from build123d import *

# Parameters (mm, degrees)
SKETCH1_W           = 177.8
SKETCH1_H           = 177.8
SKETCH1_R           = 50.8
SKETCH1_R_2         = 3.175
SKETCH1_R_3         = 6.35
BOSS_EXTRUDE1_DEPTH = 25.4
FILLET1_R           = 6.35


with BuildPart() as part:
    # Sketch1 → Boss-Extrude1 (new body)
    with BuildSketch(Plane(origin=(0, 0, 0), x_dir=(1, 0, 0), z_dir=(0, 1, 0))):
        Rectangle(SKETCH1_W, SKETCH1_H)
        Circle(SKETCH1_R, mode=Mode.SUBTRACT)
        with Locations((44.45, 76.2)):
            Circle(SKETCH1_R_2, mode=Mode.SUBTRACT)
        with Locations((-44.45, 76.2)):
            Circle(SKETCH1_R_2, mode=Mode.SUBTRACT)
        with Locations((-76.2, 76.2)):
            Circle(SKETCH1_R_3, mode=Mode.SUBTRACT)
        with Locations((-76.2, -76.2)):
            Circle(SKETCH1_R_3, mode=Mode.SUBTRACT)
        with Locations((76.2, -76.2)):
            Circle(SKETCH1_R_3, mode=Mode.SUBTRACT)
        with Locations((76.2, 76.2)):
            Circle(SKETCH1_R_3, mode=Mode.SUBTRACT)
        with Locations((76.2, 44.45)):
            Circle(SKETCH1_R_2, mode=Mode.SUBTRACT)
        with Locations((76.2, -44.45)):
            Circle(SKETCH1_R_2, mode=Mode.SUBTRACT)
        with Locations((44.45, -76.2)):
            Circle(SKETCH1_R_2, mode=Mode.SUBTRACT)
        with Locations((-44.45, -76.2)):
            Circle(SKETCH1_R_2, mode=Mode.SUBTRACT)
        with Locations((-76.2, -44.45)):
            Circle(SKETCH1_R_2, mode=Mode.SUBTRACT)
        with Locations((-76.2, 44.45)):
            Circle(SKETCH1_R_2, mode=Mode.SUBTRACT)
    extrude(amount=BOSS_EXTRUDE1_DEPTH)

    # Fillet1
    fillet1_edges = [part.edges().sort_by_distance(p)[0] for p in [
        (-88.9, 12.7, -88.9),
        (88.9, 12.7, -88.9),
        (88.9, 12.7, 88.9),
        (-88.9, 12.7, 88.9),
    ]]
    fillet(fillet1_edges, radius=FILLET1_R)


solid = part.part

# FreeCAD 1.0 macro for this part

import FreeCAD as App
import Part
import Sketcher

V = App.Vector
Q = App.Units.Quantity


def edges_at(feature, points):
    """Names of the edges that pass closest to the given points."""
    edges = feature.Shape.Edges
    near = lambda p: min(range(len(edges)), key=lambda i: edges[i].distToShape(Part.Vertex(*p))[0])
    return sorted({f"Edge{near(p) + 1}" for p in points})


def add_polygon(sketch, points):
    """Adds a closed chain of lines whose ends are joined by coincident constraints."""
    first, n = sketch.GeometryCount, len(points)
    for a, b in zip(points, points[1:] + points[:1]):
        sketch.addGeometry(Part.LineSegment(App.Vector(*a, 0), App.Vector(*b, 0)), False)
    for i in range(n):
        sketch.addConstraint(Sketcher.Constraint("Coincident", first + i, 2, first + (i + 1) % n, 1))

doc = App.newDocument("Part")
params = doc.addObject("Spreadsheet::Sheet", "Params")
for row, (alias, value) in enumerate([
    ("sketch1_diameter", "4 in"),
    ("sketch1_diameter2", "0.5 in"),
    ("sketch1_diameter3", "0.25 in"),
    ("sketch1_width", "7 in"),
    ("pad1_length", "1 in"),
    ("fillet_radius", "0.25 in"),
], start=1):
    params.set(f"A{row}", alias)
    params.set(f"B{row}", "=" + value)
    params.setAlias(f"B{row}", alias)

body = doc.addObject("PartDesign::Body", "Body")

# Sketch on XZ plane
sketch1 = doc.addObject("Sketcher::SketchObject", "Sketch")
body.addObject(sketch1)
sketch1.AttachmentSupport = (doc.XZ_Plane, [""])
sketch1.MapMode = "FlatFace"
add_polygon(sketch1, [(-88.9, -88.9), (-88.9, 88.9), (88.9, 88.9), (88.9, -88.9)])  # lines 0-3
sketch1.addGeometry(Part.Circle(V(-76.2, 76.2, 0), V(0, 0, 1), 6.3), False)  # 4
sketch1.addGeometry(Part.Circle(V(-44.5, 76.2, 0), V(0, 0, 1), 3.2), False)  # 5
sketch1.addGeometry(Part.Circle(V(-76.2, 44.5, 0), V(0, 0, 1), 3.2), False)  # 6
sketch1.addGeometry(Part.Circle(V(44.5, 76.2, 0), V(0, 0, 1), 3.2), False)  # 7
sketch1.addGeometry(Part.Circle(V(76.2, 76.2, 0), V(0, 0, 1), 6.3), False)  # 8
sketch1.addGeometry(Part.Circle(V(76.2, 44.5, 0), V(0, 0, 1), 3.2), False)  # 9
sketch1.addGeometry(Part.Circle(V(-76.2, -44.5, 0), V(0, 0, 1), 3.2), False)  # 10
sketch1.addGeometry(Part.Circle(V(-76.2, -76.2, 0), V(0, 0, 1), 6.3), False)  # 11
sketch1.addGeometry(Part.Circle(V(-44.5, -76.2, 0), V(0, 0, 1), 3.2), False)  # 12
sketch1.addGeometry(Part.Circle(V(0, 0, 0), V(0, 0, 1), 50.8), False)  # 13
sketch1.addGeometry(Part.Circle(V(76.2, -44.5, 0), V(0, 0, 1), 3.2), False)  # 14
sketch1.addGeometry(Part.Circle(V(44.5, -76.2, 0), V(0, 0, 1), 3.2), False)  # 15
sketch1.addGeometry(Part.Circle(V(76.2, -76.2, 0), V(0, 0, 1), 6.3), False)  # 16
sketch1.addConstraint([
    Sketcher.Constraint("Vertical", 0),
    Sketcher.Constraint("Horizontal", 1),
    Sketcher.Constraint("Vertical", 2),
    Sketcher.Constraint("Horizontal", 3),
    Sketcher.Constraint("Coincident", 13, 3, -1, 1),
    Sketcher.Constraint("Equal", 5, 6),
    Sketcher.Constraint("Equal", 6, 7),
    Sketcher.Constraint("Equal", 4, 8),
    Sketcher.Constraint("Equal", 7, 9),
    Sketcher.Constraint("Equal", 9, 10),
    Sketcher.Constraint("Equal", 8, 11),
    Sketcher.Constraint("Equal", 10, 12),
    Sketcher.Constraint("Equal", 12, 14),
    Sketcher.Constraint("Equal", 14, 15),
    Sketcher.Constraint("Equal", 11, 16),
    Sketcher.Constraint("Symmetric", 9, 3, 10, 3, -1, 1),
    Sketcher.Constraint("Symmetric", 8, 3, 11, 3, -1, 1),
    Sketcher.Constraint("Symmetric", 7, 3, 12, 3, -1, 1),
    Sketcher.Constraint("Symmetric", 6, 3, 14, 3, -1, 1),
    Sketcher.Constraint("Symmetric", 5, 3, 15, 3, -1, 1),
    Sketcher.Constraint("Symmetric", 4, 3, 16, 3, -1, 1),
    Sketcher.Constraint("Symmetric", 0, 2, 2, 2, -1, 1),
    Sketcher.Constraint("Symmetric", 5, 3, 7, 3, -2),
    Sketcher.Constraint("Symmetric", 4, 3, 8, 3, -2),
    Sketcher.Constraint("Symmetric", 6, 3, 9, 3, -2),
    Sketcher.Constraint("Horizontal", 4, 3, 5, 3),
    Sketcher.Constraint("Vertical", 4, 3, 6, 3),
    Sketcher.Constraint("Equal", 3, 0),
    Sketcher.Constraint("Diameter", 13, Q("4 in")),
    Sketcher.Constraint("Diameter", 4, Q("0.5 in")),
    Sketcher.Constraint("Diameter", 5, Q("0.25 in")),
    Sketcher.Constraint("DistanceX", 1, 1, 1, 2, Q("7 in")),
    Sketcher.Constraint("DistanceX", 4, 3, -1, 1, Q("3 in")),
    Sketcher.Constraint("DistanceY", -1, 1, 4, 3, Q("3 in")),
    Sketcher.Constraint("DistanceX", 5, 3, 7, 3, Q("3.5 in")),
    Sketcher.Constraint("DistanceY", 10, 3, 6, 3, Q("3.5 in")),
])
sketch1.setExpression("Constraints[32]", "Params.sketch1_diameter")
sketch1.setExpression("Constraints[33]", "Params.sketch1_diameter2")
sketch1.setExpression("Constraints[34]", "Params.sketch1_diameter3")
sketch1.setExpression("Constraints[35]", "Params.sketch1_width")
pad1 = doc.addObject("PartDesign::Pad", "Pad")
body.addObject(pad1)
pad1.Profile = sketch1
pad1.setExpression("Length", "Params.pad1_length")
pad1.Reversed = True
doc.recompute()

fillet = doc.addObject("PartDesign::Fillet", "Fillet")
body.addObject(fillet)
fillet.Base = (pad1, edges_at(pad1, [
    (-88.9, 12.7, -88.9),
    (88.9, 12.7, -88.9),
    (88.9, 12.7, 88.9),
    (-88.9, 12.7, 88.9),
]))
fillet.setExpression("Radius", "Params.fillet_radius")

doc.recompute()
